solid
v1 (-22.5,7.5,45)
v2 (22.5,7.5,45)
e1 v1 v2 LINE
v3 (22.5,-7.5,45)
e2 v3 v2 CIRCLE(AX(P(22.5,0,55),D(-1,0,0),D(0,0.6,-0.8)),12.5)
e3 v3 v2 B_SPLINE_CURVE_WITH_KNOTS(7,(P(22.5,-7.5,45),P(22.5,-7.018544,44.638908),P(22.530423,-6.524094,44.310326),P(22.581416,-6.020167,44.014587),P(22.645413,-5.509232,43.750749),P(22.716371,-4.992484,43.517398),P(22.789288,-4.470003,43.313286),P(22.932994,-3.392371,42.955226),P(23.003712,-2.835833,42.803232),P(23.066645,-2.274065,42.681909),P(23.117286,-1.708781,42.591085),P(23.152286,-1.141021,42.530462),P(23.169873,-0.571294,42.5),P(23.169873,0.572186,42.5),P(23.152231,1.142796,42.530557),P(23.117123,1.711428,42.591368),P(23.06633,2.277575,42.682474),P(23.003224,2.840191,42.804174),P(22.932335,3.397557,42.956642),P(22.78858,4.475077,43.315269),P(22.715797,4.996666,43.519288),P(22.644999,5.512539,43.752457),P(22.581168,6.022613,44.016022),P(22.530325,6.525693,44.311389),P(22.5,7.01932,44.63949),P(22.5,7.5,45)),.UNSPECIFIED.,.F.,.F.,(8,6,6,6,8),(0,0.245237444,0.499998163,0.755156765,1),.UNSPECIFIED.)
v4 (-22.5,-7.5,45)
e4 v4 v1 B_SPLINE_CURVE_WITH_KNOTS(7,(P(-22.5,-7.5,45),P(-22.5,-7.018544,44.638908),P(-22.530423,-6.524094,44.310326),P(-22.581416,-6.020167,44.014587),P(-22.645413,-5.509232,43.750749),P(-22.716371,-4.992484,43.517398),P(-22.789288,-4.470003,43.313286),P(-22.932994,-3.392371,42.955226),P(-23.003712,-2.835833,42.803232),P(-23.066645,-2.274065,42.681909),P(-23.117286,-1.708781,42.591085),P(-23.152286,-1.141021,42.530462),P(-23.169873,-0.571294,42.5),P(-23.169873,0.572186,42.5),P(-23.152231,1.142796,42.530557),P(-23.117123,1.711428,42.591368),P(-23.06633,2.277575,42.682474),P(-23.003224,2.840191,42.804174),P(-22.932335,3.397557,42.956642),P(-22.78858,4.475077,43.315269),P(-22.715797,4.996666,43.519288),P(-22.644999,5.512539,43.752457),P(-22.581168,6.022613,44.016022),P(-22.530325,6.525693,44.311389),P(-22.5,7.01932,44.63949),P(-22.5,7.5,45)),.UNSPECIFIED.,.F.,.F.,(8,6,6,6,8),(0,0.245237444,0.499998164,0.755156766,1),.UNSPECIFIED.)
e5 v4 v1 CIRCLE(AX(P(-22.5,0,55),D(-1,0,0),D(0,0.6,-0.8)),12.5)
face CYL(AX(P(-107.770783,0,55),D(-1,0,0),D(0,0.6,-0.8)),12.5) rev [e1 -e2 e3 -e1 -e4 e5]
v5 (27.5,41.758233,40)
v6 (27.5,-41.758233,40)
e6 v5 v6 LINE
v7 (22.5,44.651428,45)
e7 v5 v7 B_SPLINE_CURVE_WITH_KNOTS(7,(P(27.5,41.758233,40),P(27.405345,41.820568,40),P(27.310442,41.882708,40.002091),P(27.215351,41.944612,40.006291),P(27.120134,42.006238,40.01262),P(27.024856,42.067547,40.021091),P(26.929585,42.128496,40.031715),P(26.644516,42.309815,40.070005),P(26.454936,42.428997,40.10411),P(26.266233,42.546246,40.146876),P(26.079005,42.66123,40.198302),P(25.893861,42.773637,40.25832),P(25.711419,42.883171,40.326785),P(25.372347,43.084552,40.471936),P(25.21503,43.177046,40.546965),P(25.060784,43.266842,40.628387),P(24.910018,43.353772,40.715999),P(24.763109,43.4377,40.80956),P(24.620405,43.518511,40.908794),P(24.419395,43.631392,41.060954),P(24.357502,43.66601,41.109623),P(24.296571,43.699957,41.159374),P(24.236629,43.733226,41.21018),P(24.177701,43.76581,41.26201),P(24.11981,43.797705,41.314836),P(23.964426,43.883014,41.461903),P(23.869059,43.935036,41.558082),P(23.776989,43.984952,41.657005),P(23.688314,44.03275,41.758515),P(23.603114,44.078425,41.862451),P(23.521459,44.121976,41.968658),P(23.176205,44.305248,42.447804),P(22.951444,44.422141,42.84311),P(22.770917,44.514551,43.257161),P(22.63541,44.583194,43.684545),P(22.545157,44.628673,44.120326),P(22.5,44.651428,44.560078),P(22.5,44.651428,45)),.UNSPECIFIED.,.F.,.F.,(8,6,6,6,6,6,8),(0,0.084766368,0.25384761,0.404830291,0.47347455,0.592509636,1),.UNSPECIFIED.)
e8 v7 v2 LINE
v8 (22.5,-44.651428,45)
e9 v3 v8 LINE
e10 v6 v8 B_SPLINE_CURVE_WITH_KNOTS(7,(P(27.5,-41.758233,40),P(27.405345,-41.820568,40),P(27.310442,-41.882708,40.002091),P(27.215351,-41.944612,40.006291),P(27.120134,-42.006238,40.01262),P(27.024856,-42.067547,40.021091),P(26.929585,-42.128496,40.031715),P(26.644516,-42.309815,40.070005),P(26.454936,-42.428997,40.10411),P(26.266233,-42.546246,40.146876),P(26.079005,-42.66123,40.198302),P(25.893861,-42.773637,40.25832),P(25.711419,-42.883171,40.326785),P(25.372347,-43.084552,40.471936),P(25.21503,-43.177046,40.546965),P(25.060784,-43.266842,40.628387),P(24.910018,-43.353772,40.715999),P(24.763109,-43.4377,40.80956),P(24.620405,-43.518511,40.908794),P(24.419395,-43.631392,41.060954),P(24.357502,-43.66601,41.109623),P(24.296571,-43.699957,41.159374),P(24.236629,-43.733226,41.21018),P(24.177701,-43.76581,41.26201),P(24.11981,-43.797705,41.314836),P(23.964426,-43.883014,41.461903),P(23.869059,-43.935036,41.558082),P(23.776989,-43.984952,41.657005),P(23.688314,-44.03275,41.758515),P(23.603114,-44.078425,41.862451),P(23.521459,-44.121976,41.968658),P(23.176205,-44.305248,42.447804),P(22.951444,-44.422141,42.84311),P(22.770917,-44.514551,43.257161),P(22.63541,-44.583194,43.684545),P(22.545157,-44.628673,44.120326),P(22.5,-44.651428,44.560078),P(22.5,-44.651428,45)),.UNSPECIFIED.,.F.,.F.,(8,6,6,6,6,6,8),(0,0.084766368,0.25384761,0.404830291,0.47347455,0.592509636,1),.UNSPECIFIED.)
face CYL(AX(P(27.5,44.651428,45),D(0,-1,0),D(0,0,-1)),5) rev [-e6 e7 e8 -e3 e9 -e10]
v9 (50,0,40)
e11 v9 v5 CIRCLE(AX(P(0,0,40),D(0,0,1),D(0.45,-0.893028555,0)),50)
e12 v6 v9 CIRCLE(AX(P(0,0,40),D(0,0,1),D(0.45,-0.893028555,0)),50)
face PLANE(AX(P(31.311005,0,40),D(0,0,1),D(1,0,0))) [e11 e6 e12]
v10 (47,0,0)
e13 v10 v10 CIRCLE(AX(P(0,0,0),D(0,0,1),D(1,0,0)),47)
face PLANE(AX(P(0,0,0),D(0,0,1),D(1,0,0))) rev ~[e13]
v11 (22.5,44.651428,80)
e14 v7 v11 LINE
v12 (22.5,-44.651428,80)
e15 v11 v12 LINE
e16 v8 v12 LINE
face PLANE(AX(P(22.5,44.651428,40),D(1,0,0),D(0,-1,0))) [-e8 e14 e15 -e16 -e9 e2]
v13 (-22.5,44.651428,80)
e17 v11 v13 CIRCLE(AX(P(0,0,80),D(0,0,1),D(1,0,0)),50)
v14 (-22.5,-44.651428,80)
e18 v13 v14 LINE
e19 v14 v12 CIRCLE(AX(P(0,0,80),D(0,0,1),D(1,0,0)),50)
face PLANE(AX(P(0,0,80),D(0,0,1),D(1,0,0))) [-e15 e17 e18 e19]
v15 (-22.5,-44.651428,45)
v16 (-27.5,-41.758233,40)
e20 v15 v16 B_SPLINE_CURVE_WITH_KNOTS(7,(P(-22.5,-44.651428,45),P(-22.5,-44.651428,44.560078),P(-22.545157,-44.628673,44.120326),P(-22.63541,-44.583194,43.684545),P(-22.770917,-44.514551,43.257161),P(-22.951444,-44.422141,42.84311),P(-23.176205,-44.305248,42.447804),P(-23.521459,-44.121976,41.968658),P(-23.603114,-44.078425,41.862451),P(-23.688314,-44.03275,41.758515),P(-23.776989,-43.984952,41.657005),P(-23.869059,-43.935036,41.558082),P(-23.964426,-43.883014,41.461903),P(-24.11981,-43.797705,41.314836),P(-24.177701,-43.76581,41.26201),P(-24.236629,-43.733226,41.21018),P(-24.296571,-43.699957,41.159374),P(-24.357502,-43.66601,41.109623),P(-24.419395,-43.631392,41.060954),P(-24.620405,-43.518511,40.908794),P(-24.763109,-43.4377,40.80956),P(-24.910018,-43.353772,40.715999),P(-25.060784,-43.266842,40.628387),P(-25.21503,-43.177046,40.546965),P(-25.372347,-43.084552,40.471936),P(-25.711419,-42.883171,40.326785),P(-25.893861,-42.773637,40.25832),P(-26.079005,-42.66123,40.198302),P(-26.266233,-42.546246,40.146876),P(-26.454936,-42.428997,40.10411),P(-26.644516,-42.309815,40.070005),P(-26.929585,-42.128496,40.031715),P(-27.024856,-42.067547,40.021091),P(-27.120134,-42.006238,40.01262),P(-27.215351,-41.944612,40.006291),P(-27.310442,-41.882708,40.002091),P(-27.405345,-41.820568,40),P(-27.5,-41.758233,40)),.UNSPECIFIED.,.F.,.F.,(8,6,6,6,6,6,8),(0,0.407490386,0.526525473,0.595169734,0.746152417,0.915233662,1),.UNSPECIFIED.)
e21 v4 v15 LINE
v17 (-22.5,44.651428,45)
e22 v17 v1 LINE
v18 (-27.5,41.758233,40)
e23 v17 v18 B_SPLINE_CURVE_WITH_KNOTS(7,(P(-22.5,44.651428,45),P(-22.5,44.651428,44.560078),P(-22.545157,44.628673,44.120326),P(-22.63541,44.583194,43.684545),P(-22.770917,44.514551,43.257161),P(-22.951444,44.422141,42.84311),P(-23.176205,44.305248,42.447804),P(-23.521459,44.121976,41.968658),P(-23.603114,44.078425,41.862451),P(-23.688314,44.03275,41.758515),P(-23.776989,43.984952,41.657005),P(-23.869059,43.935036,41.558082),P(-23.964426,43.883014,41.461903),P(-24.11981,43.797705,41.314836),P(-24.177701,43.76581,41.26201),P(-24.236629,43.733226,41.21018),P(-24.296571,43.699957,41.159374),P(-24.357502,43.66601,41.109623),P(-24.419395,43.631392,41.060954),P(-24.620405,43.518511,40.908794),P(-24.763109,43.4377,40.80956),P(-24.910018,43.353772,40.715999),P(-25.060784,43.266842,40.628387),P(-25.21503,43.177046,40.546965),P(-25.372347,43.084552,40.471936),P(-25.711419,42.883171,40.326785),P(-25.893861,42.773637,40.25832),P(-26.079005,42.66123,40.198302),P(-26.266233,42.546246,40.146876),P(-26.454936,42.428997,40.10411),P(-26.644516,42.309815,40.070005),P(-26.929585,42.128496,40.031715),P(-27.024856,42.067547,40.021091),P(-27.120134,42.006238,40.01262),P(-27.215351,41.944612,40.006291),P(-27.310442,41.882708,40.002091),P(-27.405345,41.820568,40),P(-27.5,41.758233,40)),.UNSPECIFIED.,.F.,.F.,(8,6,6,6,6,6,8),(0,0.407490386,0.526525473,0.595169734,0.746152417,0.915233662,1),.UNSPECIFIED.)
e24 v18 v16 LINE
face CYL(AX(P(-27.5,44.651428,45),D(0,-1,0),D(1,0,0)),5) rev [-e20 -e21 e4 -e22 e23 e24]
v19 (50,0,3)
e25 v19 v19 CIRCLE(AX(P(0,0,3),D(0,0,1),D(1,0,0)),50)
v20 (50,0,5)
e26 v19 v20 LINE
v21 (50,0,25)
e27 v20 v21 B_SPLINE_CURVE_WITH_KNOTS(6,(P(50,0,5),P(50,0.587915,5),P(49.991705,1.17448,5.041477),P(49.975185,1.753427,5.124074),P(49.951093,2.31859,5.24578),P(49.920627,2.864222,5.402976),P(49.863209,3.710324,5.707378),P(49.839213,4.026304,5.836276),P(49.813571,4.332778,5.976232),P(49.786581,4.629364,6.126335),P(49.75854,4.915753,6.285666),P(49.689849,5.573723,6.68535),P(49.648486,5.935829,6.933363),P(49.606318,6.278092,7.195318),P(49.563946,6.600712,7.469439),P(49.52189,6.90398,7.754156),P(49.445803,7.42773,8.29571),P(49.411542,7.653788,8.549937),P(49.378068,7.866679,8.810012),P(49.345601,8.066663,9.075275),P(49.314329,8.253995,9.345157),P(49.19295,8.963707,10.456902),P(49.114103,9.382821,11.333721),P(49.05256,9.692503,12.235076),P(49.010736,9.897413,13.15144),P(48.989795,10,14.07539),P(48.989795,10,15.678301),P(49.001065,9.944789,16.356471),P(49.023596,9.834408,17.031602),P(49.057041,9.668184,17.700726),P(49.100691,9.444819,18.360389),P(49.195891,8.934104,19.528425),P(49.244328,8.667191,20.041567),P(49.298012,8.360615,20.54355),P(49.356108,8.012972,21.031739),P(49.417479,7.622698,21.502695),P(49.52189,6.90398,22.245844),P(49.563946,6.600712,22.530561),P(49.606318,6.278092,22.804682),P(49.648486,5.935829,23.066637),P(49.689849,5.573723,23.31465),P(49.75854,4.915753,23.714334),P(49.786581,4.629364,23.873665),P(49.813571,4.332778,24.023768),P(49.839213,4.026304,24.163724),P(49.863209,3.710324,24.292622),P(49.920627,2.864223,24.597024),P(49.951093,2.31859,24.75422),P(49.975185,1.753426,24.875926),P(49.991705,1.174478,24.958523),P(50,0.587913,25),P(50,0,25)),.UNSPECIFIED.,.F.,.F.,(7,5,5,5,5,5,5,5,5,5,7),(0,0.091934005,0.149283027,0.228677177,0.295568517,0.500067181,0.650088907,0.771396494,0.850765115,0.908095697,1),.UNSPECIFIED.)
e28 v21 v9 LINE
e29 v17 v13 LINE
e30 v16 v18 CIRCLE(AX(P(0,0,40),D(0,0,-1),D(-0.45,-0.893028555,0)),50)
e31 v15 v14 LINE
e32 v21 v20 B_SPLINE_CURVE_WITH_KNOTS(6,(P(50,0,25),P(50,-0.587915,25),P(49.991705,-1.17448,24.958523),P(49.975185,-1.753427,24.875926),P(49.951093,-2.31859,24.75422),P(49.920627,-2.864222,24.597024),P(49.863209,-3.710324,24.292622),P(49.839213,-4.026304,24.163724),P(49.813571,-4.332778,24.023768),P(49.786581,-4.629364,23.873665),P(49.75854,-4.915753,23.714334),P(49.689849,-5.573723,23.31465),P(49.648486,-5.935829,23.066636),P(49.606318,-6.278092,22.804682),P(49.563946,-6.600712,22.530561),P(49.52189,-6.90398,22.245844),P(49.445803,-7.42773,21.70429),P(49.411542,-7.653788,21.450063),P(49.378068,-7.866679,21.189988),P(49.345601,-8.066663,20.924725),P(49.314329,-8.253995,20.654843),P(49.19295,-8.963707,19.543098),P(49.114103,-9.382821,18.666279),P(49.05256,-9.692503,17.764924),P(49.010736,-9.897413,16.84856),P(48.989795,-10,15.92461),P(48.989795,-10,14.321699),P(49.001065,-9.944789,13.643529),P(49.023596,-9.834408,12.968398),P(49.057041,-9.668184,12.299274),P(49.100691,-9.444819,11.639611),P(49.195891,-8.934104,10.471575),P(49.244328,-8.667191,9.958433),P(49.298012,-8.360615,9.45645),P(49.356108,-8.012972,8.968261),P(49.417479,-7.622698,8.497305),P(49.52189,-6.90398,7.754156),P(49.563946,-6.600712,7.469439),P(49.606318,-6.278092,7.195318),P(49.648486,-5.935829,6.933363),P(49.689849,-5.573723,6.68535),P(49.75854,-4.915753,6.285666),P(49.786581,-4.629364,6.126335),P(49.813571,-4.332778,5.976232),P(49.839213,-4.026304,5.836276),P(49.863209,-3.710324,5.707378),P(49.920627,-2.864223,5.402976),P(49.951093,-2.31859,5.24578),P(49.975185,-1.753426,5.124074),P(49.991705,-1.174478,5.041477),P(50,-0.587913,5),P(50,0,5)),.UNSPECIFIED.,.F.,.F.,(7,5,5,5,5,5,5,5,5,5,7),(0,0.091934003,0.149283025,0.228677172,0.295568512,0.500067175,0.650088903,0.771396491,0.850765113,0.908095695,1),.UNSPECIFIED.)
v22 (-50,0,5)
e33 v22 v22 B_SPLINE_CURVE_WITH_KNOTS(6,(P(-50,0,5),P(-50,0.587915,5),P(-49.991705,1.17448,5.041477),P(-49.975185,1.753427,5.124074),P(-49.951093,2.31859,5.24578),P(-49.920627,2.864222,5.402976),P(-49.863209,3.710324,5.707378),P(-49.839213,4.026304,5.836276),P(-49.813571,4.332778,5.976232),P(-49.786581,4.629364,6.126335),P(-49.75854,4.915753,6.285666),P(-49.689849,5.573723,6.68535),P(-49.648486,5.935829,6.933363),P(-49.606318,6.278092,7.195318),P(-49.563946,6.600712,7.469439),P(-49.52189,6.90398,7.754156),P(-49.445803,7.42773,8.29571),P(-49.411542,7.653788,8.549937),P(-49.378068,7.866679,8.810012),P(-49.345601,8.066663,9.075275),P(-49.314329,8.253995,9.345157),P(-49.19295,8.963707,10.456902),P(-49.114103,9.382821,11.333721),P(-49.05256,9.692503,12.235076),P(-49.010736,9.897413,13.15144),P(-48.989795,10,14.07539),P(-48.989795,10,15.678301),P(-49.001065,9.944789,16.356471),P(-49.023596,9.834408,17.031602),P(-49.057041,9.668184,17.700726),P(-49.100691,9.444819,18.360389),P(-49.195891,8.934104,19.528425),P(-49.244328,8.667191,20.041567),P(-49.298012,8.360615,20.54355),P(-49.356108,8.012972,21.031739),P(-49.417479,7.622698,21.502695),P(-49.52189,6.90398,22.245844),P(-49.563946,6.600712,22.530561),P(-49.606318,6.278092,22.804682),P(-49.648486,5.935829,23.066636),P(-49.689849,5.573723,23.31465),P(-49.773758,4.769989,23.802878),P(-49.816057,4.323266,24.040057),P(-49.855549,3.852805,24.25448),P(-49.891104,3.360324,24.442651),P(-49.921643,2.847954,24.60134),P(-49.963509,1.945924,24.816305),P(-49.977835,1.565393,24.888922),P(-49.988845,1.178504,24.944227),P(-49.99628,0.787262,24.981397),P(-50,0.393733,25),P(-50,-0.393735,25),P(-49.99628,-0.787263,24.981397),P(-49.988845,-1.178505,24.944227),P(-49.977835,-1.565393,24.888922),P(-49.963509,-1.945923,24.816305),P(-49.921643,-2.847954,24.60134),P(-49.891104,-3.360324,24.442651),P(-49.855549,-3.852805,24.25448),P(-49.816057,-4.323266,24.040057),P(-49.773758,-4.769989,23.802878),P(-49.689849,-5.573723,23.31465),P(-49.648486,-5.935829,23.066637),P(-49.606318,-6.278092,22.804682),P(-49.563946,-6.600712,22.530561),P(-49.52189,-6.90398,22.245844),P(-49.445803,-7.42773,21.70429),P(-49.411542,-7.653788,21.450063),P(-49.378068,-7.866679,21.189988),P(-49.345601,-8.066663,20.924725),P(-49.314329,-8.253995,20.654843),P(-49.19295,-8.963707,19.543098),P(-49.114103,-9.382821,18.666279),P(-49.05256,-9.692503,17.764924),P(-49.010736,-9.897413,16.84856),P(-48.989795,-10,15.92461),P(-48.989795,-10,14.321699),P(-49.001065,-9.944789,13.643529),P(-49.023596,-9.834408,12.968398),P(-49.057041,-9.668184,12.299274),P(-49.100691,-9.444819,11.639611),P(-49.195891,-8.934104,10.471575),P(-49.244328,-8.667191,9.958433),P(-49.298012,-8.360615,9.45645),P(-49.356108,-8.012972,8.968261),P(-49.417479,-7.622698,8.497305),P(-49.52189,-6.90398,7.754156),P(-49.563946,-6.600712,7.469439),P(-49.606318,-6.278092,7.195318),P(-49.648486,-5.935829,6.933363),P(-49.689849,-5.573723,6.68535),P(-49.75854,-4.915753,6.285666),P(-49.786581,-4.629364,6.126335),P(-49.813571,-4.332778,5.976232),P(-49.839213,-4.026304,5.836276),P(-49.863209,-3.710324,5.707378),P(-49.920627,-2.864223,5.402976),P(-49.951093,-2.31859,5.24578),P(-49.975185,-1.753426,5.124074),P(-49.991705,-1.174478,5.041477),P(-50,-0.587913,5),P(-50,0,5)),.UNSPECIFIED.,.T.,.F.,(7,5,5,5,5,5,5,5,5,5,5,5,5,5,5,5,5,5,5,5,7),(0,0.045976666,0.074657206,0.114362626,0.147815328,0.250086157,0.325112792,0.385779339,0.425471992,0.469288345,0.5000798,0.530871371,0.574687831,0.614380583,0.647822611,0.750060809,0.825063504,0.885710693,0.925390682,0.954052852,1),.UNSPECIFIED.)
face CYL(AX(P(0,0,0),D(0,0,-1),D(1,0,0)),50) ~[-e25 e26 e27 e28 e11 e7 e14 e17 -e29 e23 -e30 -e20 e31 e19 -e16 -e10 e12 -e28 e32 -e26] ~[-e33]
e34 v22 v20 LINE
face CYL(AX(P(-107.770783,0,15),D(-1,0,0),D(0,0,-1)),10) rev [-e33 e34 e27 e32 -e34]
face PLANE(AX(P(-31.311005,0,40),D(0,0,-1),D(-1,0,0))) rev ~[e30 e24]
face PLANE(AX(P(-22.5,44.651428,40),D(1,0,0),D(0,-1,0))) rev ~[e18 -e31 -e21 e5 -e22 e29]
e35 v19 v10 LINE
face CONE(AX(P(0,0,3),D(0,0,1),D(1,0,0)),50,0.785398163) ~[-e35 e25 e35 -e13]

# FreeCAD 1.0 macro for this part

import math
import FreeCAD as App
import Part
import Sketcher
from FreeCAD import Vector
Q = App.Units.Quantity


def edges_at(feature, points):
    """Names of the edges that pass closest to the given points."""
    edges = feature.Shape.Edges
    near = lambda p: min(range(len(edges)), key=lambda i: edges[i].distToShape(Part.Vertex(*p))[0])
    return sorted({f"Edge{near(p) + 1}" for p in points})

doc = App.newDocument("Part")
body = doc.addObject("PartDesign::Body", "Body")

# Sketch on XY plane
sketch1 = doc.addObject("Sketcher::SketchObject", "Sketch")
body.addObject(sketch1)
sketch1.AttachmentSupport = (doc.XY_Plane, [""])
sketch1.MapMode = "FlatFace"
sketch1.addGeometry(Part.Circle(Vector(0, 0, 0), Vector(0, 0, 1), 50), False)
sketch1.addConstraint([
    Sketcher.Constraint("Coincident", 0, 3, -1, 1),
    Sketcher.Constraint("Diameter", 0, Q("100 mm")),
])
pad1 = doc.addObject("PartDesign::Pad", "Pad")
body.addObject(pad1)
pad1.Profile = sketch1
pad1.Length = 80

# Sketch on XY plane
sketch2 = doc.addObject("Sketcher::SketchObject", "Sketch001")
body.addObject(sketch2)
sketch2.AttachmentSupport = (doc.XY_Plane, [""])
sketch2.MapMode = "FlatFace"
sketch2.AttachmentOffset = App.Placement(Vector(0, 0, 40), App.Rotation())
sketch2.addGeometry([
    Part.LineSegment(Vector(-22, -45, 0), Vector(-22, 45, 0)),
    Part.ArcOfCircle(Part.Circle(Vector(0, 0, 0), Vector(0, 0, 1), 50), math.radians(117), math.radians(243)),
    Part.LineSegment(Vector(22, 45, 0), Vector(22, -45, 0)),
    Part.ArcOfCircle(Part.Circle(Vector(0, 0, 0), Vector(0, 0, 1), 50), math.radians(-63), math.radians(63)),
], False)
sketch2.addConstraint([
    Sketcher.Constraint("Coincident", 0, 1, 1, 2),
    Sketcher.Constraint("Coincident", 1, 1, 0, 2),
    Sketcher.Constraint("Coincident", 2, 1, 3, 2),
    Sketcher.Constraint("Coincident", 3, 1, 2, 2),
    Sketcher.Constraint("Vertical", 0),
    Sketcher.Constraint("Vertical", 2),
    Sketcher.Constraint("Coincident", 1, 3, -1, 1),
    Sketcher.Constraint("Coincident", 3, 3, -1, 1),
    Sketcher.Constraint("Equal", 1, 3),
    Sketcher.Constraint("Horizontal", 1, 1, 2, 1),
    Sketcher.Constraint("Radius", 1, Q("50 mm")),
    Sketcher.Constraint("DistanceX", 1, 1, 2, 1, Q("45 mm")),
])
pocket1 = doc.addObject("PartDesign::Pocket", "Pocket")
body.addObject(pocket1)
pocket1.Profile = sketch2
pocket1.Length = 40
pocket1.Reversed = True
doc.recompute()

fillet = doc.addObject("PartDesign::Fillet", "Fillet")
body.addObject(fillet)
fillet.Base = (pocket1, edges_at(pocket1, [(22.5, 0, 40), (-22.5, 0, 40)]))
fillet.Radius = 5

# Sketch on YZ plane
sketch3 = doc.addObject("Sketcher::SketchObject", "Sketch002")
body.addObject(sketch3)
sketch3.AttachmentSupport = (doc.YZ_Plane, [""])
sketch3.MapMode = "FlatFace"
sketch3.addGeometry(Part.Circle(Vector(0, 55, 0), Vector(0, 0, 1), 12), False)
sketch3.addConstraint([
    Sketcher.Constraint("PointOnObject", 0, 3, -2),
    Sketcher.Constraint("Diameter", 0, Q("25 mm")),
    Sketcher.Constraint("DistanceY", -1, 1, 0, 3, Q("55 mm")),
])
pocket2 = doc.addObject("PartDesign::Pocket", "Pocket001")
body.addObject(pocket2)
pocket2.Profile = sketch3
pocket2.Type = "ThroughAll"
pocket2.Midplane = True
doc.recompute()

chamfer = doc.addObject("PartDesign::Chamfer", "Chamfer")
body.addObject(chamfer)
chamfer.Base = (pocket2, edges_at(pocket2, [(-50, 0, 0)]))
chamfer.Size = 3

# Sketch on YZ plane
sketch4 = doc.addObject("Sketcher::SketchObject", "Sketch003")
body.addObject(sketch4)
sketch4.AttachmentSupport = (doc.YZ_Plane, [""])
sketch4.MapMode = "FlatFace"
sketch4.addGeometry(Part.Circle(Vector(0, 15, 0), Vector(0, 0, 1), 10), False)
sketch4.addConstraint([
    Sketcher.Constraint("PointOnObject", 0, 3, -2),
    Sketcher.Constraint("Diameter", 0, Q("20 mm")),
    Sketcher.Constraint("DistanceY", -1, 1, 0, 3, Q("15 mm")),
])
pocket3 = doc.addObject("PartDesign::Pocket", "Pocket002")
body.addObject(pocket3)
pocket3.Profile = sketch4
pocket3.Type = "ThroughAll"
pocket3.Midplane = True

doc.recompute()
